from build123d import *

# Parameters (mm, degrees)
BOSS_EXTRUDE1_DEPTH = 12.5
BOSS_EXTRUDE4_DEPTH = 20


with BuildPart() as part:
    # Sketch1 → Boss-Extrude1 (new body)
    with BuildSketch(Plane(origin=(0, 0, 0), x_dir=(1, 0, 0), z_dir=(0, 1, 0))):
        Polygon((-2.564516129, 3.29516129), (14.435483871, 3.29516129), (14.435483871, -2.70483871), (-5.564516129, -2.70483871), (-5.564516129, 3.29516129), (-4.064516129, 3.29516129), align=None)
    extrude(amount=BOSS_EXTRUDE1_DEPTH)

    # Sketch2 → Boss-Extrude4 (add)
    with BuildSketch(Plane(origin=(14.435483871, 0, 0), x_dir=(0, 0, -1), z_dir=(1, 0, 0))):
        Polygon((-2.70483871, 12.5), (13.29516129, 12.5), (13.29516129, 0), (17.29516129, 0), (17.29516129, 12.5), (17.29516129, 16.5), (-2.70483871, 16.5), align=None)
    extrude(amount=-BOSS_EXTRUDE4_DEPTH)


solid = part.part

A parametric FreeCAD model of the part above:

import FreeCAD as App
import Part
import Sketcher

V = App.Vector

doc = App.newDocument("Part")
params = doc.addObject("Spreadsheet::Sheet", "Params")
for row, (alias, value) in enumerate([
    ("sketch1_width", "20 mm"),
    ("sketch1_height", "6 mm"),
    ("pad1_length", "12.5 mm"),
    ("sketch2_width", "4 mm"),
    ("sketch2_height", "16 mm"),
    ("sketch2_width2", "12.5 mm"),
    ("pad2_length", "20 mm"),
], start=1):
    params.set(f"A{row}", alias)
    params.set(f"B{row}", "=" + value)
    params.setAlias(f"B{row}", alias)

body = doc.addObject("PartDesign::Body", "Body")

sketch1 = doc.addObject("Sketcher::SketchObject", "Sketch")
body.addObject(sketch1)
sketch1.AttachmentSupport = (doc.XZ_Plane, [""])
sketch1.MapMode = "FlatFace"
sketch1.addGeometry(Part.LineSegment(V(14, -3, 0), V(-6, -3, 0)), False)
sketch1.addGeometry(Part.LineSegment(V(-6, -3, 0), V(-6, 3, 0)), False)
sketch1.addGeometry(Part.LineSegment(V(-6, 3, 0), V(14, 3, 0)), False)
sketch1.addGeometry(Part.LineSegment(V(14, 3, 0), V(14, -3, 0)), False)
sketch1.addConstraint(Sketcher.Constraint("Coincident", 0, 2, 1, 1))
sketch1.addConstraint(Sketcher.Constraint("Coincident", 1, 2, 2, 1))
sketch1.addConstraint(Sketcher.Constraint("Coincident", 2, 2, 3, 1))
sketch1.addConstraint(Sketcher.Constraint("Coincident", 3, 2, 0, 1))
sketch1.addConstraint(Sketcher.Constraint("Horizontal", 0))
sketch1.addConstraint(Sketcher.Constraint("Vertical", 1))
sketch1.addConstraint(Sketcher.Constraint("Horizontal", 2))
sketch1.addConstraint(Sketcher.Constraint("Vertical", 3))
sketch1.addConstraint(Sketcher.Constraint("DistanceX", 0, 2, 0, 1, 20.0))
sketch1.addConstraint(Sketcher.Constraint("DistanceY", 1, 1, 1, 2, 6.0))
sketch1.addConstraint(Sketcher.Constraint("DistanceY", 0, 2, -1, 1, 3.295161))
sketch1.addConstraint(Sketcher.Constraint("DistanceX", 0, 2, -1, 1, 5.564516))
sketch1.setExpression("Constraints[8]", "Params.sketch1_width")
sketch1.setExpression("Constraints[9]", "Params.sketch1_height")
pad1 = doc.addObject("PartDesign::Pad", "Pad")
body.addObject(pad1)
pad1.Profile = sketch1
pad1.setExpression("Length", "Params.pad1_length")
pad1.Reversed = True

sketch2 = doc.addObject("Sketcher::SketchObject", "Sketch001")
body.addObject(sketch2)
sketch2.AttachmentSupport = (doc.YZ_Plane, [""])
sketch2.MapMode = "FlatFace"
sketch2.AttachmentOffset = App.Placement(V(0, 0, 14.435484), App.Rotation())
sketch2.addGeometry(Part.LineSegment(V(12.5, 2.7, 0), V(12.5, -13.3, 0)), False)
sketch2.addGeometry(Part.LineSegment(V(12.5, -13.3, 0), V(0, -13.3, 0)), False)
sketch2.addGeometry(Part.LineSegment(V(0, -13.3, 0), V(0, -17.3, 0)), False)
sketch2.addGeometry(Part.LineSegment(V(0, -17.3, 0), V(16.5, -17.3, 0)), False)
sketch2.addGeometry(Part.LineSegment(V(16.5, -17.3, 0), V(16.5, 2.7, 0)), False)
sketch2.addGeometry(Part.LineSegment(V(16.5, 2.7, 0), V(12.5, 2.7, 0)), False)
sketch2.addConstraint(Sketcher.Constraint("Coincident", 0, 2, 1, 1))
sketch2.addConstraint(Sketcher.Constraint("Coincident", 1, 2, 2, 1))
sketch2.addConstraint(Sketcher.Constraint("Coincident", 2, 2, 3, 1))
sketch2.addConstraint(Sketcher.Constraint("Coincident", 3, 2, 4, 1))
sketch2.addConstraint(Sketcher.Constraint("Coincident", 4, 2, 5, 1))
sketch2.addConstraint(Sketcher.Constraint("Coincident", 5, 2, 0, 1))
sketch2.addConstraint(Sketcher.Constraint("Vertical", 0))
sketch2.addConstraint(Sketcher.Constraint("Horizontal", 1))
sketch2.addConstraint(Sketcher.Constraint("Vertical", 2))
sketch2.addConstraint(Sketcher.Constraint("Horizontal", 3))
sketch2.addConstraint(Sketcher.Constraint("Vertical", 4))
sketch2.addConstraint(Sketcher.Constraint("Horizontal", 5))
sketch2.addConstraint(Sketcher.Constraint("PointOnObject", 1, 2, -2))
sketch2.addConstraint(Sketcher.Constraint("Equal", 5, 2))
sketch2.addConstraint(Sketcher.Constraint("DistanceX", 5, 2, 5, 1, 4.0))
sketch2.addConstraint(Sketcher.Constraint("DistanceY", 0, 2, 0, 1, 16.0))
sketch2.addConstraint(Sketcher.Constraint("DistanceX", 1, 2, 1, 1, 12.5))
sketch2.addConstraint(Sketcher.Constraint("DistanceY", 0, 2, -1, 1, 13.295161))
sketch2.setExpression("Constraints[14]", "Params.sketch2_width")
sketch2.setExpression("Constraints[15]", "Params.sketch2_height")
sketch2.setExpression("Constraints[16]", "Params.sketch2_width2")
pad2 = doc.addObject("PartDesign::Pad", "Pad001")
body.addObject(pad2)
pad2.Profile = sketch2
pad2.setExpression("Length", "Params.pad2_length")
pad2.Reversed = True

doc.recompute()
